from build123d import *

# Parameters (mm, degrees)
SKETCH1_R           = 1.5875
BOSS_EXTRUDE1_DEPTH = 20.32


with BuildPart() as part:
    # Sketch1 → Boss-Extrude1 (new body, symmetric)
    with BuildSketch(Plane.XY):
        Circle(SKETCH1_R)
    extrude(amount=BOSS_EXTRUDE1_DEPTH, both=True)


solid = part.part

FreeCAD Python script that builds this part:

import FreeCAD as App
import Part
import Sketcher
Q = App.Units.Quantity

doc = App.newDocument("Part")
params = doc.addObject("Spreadsheet::Sheet", "Params")
for row, (alias, value) in enumerate([
    ("sketch1_diameter", "0.125 in"),
    ("pad1_length", "1.6 in"),
], start=1):
    params.set(f"A{row}", alias)
    params.set(f"B{row}", "=" + value)
    params.setAlias(f"B{row}", alias)

body = doc.addObject("PartDesign::Body", "Body")

# Sketch on XY plane
sketch1 = doc.addObject("Sketcher::SketchObject", "Sketch")
body.addObject(sketch1)
sketch1.AttachmentSupport = (doc.XY_Plane, [""])
sketch1.MapMode = "FlatFace"
sketch1.addGeometry(Part.Circle(App.Vector(0, 0, 0), App.Vector(0, 0, 1), 1.6), False)
sketch1.addConstraint([
    Sketcher.Constraint("Coincident", 0, 3, -1, 1),
    Sketcher.Constraint("Diameter", 0, Q("0.125 in")),
])
sketch1.setExpression("Constraints[1]", "Params.sketch1_diameter")
pad1 = doc.addObject("PartDesign::Pad", "Pad")
body.addObject(pad1)
pad1.Profile = sketch1
pad1.setExpression("Length", "Params.pad1_length")
pad1.Midplane = True

doc.recompute()
